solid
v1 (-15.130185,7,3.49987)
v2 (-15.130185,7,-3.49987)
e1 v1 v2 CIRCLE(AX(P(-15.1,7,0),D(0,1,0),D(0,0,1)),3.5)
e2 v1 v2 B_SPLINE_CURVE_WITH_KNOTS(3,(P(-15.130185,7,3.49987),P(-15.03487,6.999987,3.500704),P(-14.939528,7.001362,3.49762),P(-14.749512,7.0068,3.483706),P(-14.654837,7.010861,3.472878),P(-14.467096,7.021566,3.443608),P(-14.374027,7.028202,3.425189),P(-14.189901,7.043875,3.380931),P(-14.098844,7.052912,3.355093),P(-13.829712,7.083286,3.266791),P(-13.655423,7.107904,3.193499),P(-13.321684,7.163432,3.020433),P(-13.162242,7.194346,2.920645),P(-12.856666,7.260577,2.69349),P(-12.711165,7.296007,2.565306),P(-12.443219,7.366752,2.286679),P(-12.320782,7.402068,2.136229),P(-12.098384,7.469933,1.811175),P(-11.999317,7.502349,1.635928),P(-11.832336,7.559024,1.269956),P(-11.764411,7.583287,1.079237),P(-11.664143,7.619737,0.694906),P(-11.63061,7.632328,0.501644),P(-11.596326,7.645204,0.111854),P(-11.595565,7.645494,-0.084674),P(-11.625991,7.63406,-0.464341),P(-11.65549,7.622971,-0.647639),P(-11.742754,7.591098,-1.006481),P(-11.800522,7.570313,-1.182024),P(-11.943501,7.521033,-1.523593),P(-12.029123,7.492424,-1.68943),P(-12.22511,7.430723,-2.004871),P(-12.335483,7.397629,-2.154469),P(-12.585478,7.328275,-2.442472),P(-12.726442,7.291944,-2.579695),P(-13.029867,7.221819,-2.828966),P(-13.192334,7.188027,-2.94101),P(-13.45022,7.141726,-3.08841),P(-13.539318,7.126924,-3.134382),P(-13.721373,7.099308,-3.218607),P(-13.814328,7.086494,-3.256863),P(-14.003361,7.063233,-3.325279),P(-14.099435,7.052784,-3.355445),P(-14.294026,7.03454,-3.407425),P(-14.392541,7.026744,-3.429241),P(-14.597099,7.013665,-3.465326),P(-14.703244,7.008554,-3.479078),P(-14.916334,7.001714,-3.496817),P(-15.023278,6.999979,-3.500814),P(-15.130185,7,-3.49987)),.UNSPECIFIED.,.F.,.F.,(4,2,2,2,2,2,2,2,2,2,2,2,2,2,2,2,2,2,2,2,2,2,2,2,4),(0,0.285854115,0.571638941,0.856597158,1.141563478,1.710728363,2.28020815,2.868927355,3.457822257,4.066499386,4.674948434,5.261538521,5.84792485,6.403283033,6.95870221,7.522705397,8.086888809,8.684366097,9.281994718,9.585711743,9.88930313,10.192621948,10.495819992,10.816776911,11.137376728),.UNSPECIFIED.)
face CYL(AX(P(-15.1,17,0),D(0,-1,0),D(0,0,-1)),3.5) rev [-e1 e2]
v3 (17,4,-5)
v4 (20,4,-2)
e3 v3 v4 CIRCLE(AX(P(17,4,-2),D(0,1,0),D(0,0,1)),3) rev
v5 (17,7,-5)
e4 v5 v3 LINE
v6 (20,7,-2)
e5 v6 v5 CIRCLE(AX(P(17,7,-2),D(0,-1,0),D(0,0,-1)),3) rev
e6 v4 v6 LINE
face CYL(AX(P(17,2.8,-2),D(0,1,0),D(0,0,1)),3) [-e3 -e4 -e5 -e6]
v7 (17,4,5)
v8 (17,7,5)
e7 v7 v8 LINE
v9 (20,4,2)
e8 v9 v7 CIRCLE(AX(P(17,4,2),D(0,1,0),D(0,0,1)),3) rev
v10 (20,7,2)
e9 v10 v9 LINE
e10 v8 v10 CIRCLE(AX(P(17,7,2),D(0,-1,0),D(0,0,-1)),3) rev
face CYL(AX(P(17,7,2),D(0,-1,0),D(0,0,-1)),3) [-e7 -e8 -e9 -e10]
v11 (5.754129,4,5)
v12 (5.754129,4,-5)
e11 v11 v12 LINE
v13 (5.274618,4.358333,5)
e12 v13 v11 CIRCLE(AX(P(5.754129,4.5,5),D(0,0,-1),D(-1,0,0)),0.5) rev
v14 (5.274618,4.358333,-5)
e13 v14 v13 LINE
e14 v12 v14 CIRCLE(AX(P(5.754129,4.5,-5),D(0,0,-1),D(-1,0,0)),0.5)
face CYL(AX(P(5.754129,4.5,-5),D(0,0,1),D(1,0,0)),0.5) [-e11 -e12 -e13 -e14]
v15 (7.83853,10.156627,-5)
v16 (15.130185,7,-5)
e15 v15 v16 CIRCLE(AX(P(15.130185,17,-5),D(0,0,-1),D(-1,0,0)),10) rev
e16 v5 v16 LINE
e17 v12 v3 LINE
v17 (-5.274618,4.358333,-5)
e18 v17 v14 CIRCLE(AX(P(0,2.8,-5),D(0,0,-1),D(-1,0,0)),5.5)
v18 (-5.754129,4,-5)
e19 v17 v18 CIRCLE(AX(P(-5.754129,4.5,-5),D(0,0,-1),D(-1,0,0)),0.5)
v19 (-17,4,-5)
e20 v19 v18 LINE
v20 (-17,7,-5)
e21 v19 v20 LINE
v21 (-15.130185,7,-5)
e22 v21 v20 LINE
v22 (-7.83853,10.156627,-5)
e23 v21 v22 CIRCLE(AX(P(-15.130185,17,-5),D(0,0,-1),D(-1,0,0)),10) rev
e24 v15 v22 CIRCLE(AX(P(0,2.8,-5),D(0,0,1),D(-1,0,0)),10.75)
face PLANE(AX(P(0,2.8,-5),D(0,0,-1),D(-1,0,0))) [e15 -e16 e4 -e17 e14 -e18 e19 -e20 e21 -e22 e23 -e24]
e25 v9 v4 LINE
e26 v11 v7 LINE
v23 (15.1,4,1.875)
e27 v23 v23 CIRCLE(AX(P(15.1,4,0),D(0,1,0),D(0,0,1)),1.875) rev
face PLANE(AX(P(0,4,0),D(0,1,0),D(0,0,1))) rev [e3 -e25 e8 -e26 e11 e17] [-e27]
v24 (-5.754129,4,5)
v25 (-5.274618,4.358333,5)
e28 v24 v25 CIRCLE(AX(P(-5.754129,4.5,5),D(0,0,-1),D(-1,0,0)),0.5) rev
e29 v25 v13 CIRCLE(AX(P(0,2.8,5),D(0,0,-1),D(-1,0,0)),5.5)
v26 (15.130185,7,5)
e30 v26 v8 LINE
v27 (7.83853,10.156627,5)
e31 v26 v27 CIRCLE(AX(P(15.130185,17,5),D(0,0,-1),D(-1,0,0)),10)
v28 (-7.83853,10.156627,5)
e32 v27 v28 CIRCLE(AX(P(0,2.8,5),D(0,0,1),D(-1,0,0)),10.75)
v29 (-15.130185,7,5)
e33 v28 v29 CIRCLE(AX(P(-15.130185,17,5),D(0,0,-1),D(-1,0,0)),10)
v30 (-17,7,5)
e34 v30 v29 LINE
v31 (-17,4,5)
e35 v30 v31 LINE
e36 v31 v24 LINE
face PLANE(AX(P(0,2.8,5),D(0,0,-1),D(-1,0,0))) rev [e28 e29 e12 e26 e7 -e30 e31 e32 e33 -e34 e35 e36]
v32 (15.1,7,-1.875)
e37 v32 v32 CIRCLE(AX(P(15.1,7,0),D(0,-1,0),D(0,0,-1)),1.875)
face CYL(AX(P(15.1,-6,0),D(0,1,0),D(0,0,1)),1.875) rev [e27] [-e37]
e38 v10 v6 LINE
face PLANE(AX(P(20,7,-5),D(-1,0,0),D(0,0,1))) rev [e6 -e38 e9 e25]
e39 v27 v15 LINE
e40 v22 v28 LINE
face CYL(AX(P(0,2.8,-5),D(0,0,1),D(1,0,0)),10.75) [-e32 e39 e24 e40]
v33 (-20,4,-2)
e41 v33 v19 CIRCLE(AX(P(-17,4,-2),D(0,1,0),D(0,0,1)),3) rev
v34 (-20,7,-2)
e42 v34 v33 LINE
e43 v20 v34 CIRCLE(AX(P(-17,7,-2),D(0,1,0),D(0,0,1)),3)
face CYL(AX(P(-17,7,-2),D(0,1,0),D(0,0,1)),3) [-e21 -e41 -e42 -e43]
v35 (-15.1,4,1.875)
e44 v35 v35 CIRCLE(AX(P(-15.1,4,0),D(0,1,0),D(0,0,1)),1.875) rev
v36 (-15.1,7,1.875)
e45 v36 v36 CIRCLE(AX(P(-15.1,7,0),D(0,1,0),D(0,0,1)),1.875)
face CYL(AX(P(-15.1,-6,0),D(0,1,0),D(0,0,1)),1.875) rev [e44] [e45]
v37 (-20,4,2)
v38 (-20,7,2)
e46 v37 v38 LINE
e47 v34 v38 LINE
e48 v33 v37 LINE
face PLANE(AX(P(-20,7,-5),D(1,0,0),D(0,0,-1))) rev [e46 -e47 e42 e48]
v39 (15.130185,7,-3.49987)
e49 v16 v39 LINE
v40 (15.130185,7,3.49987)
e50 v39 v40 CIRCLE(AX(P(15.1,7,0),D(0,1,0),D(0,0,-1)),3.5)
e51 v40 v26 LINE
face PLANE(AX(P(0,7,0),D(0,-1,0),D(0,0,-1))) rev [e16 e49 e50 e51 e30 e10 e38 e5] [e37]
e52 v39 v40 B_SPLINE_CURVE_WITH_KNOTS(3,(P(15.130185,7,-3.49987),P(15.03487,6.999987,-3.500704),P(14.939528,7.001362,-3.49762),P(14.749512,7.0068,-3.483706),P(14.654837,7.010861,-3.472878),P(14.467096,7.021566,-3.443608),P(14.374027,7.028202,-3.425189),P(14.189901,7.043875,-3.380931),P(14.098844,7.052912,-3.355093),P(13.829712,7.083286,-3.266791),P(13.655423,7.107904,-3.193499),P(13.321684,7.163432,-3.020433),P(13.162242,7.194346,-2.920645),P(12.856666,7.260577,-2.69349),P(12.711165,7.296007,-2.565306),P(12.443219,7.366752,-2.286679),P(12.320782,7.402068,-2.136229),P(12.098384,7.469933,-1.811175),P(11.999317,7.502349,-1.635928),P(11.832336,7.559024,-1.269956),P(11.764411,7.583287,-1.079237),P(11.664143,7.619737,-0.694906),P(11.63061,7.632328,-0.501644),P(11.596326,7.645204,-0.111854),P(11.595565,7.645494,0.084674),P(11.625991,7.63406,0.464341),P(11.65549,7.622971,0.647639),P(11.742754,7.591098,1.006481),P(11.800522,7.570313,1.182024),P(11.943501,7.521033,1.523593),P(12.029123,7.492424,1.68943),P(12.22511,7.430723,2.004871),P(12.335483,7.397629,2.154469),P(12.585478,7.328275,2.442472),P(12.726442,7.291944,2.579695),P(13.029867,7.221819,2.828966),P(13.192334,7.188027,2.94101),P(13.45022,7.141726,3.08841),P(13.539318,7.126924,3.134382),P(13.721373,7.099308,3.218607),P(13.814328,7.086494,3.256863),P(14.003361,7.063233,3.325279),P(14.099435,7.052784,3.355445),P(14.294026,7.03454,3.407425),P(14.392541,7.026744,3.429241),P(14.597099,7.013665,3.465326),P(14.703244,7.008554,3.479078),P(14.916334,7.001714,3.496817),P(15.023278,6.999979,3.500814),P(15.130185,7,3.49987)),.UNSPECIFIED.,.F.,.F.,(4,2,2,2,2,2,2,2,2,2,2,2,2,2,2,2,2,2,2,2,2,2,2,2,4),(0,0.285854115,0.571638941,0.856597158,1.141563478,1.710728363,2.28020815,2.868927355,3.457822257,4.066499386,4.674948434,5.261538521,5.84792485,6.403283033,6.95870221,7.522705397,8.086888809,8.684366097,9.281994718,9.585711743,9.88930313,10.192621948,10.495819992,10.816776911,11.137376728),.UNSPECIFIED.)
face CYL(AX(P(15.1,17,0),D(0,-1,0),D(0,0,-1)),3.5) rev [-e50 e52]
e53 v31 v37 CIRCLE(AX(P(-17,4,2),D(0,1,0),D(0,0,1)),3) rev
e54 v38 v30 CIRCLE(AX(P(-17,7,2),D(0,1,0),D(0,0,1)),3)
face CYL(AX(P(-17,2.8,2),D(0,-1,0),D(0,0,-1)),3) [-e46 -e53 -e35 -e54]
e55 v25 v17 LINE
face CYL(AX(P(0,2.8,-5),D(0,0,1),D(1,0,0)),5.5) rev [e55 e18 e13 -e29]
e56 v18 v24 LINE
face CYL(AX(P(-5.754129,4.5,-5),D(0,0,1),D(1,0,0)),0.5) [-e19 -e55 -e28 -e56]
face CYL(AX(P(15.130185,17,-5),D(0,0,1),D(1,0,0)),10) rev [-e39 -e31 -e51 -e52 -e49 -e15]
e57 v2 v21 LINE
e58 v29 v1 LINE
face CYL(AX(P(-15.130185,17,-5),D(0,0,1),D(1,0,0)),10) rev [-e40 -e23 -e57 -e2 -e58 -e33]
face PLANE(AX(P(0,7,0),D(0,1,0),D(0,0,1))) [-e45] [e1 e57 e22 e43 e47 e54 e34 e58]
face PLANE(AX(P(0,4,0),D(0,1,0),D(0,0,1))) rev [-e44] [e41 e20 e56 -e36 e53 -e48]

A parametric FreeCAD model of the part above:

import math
import FreeCAD as App
import Part
import Sketcher

V = App.Vector


def edges_at(feature, points):
    """Names of the edges that pass closest to the given points."""
    edges = feature.Shape.Edges
    near = lambda p: min(range(len(edges)), key=lambda i: edges[i].distToShape(Part.Vertex(*p))[0])
    return sorted({f"Edge{near(p) + 1}" for p in points})


def add_polygon(sketch, points):
    """Adds a closed chain of lines whose ends are joined by coincident constraints."""
    first, n = sketch.GeometryCount, len(points)
    for a, b in zip(points, points[1:] + points[:1]):
        sketch.addGeometry(Part.LineSegment(App.Vector(*a, 0), App.Vector(*b, 0)), False)
    for i in range(n):
        sketch.addConstraint(Sketcher.Constraint("Coincident", first + i, 2, first + (i + 1) % n, 1))

doc = App.newDocument("Part")
body = doc.addObject("PartDesign::Body", "Body")

# Sketch on XZ plane
sketch1 = doc.addObject("Sketcher::SketchObject", "Sketch")
body.addObject(sketch1)
sketch1.AttachmentSupport = (doc.XZ_Plane, [""])
sketch1.MapMode = "FlatFace"
sketch1.AttachmentOffset = App.Placement(V(0, 0, 1), App.Rotation())
add_polygon(sketch1, [(-20, -5), (-20, 5), (20, 5), (20, -5)])  # lines 0-3
sketch1.addConstraint(Sketcher.Constraint("Vertical", 0))
sketch1.addConstraint(Sketcher.Constraint("Horizontal", 1))
sketch1.addConstraint(Sketcher.Constraint("Vertical", 2))
sketch1.addConstraint(Sketcher.Constraint("Horizontal", 3))
sketch1.addConstraint(Sketcher.Constraint("Symmetric", 0, 2, 2, 2, -1, 1))
sketch1.addConstraint(Sketcher.Constraint("DistanceX", 1, 1, 1, 2, 40.0))
sketch1.addConstraint(Sketcher.Constraint("DistanceY", 0, 1, 0, 2, 10.0))
pad1 = doc.addObject("PartDesign::Pad", "Pad")
body.addObject(pad1)
pad1.Profile = sketch1
pad1.Length = 5
doc.recompute()

fillet = doc.addObject("PartDesign::Fillet", "Fillet")
body.addObject(fillet)
fillet.Base = (pad1, edges_at(pad1, [
    (20, -3.5, 5),
    (-20, -3.5, 5),
    (-20, -3.5, -5),
    (20, -3.5, -5),
]))
fillet.Radius = 3
body2 = doc.addObject("PartDesign::Body", "Body001")

# Sketch on XY plane
sketch2 = doc.addObject("Sketcher::SketchObject", "Sketch001")
body2.addObject(sketch2)
sketch2.AttachmentSupport = (doc.getObject("XY_Plane001"), [""])
sketch2.MapMode = "FlatFace"
sketch2.addGeometry(Part.LineSegment(V(-10, 0, 0), V(-5, 0, 0)), False)
sketch2.addGeometry(Part.ArcOfCircle(Part.Circle(V(0, 3, 0), V(0, 0, 1), 6), math.radians(-31), math.radians(211)), False)
sketch2.addGeometry(Part.LineSegment(V(5, 0, 0), V(10, 0, 0)), False)
sketch2.addGeometry(Part.ArcOfCircle(Part.Circle(V(0, 3, 0), V(0, 0, 1), 11), math.radians(-15), math.radians(195)), False)
sketch2.addConstraint(Sketcher.Constraint("Coincident", 0, 2, 1, 2))
sketch2.addConstraint(Sketcher.Constraint("Coincident", 1, 1, 2, 1))
sketch2.addConstraint(Sketcher.Constraint("Coincident", 2, 2, 3, 1))
sketch2.addConstraint(Sketcher.Constraint("Coincident", 3, 2, 0, 1))
sketch2.addConstraint(Sketcher.Constraint("Horizontal", 0))
sketch2.addConstraint(Sketcher.Constraint("Horizontal", 2))
sketch2.addConstraint(Sketcher.Constraint("Coincident", 3, 3, 1, 3))
sketch2.addConstraint(Sketcher.Constraint("Symmetric", 0, 2, 1, 1, -1, 1))
sketch2.addConstraint(Sketcher.Constraint("PointOnObject", 1, 3, -2))
sketch2.addConstraint(Sketcher.Constraint("Radius", 1, 5.5))
sketch2.addConstraint(Sketcher.Constraint("Radius", 3, 10.75))
sketch2.addConstraint(Sketcher.Constraint("DistanceY", -1, 1, 1, 3, 2.8))
pad2 = doc.addObject("PartDesign::Pad", "Pad001")
body2.addObject(pad2)
pad2.Profile = sketch2
pad2.Type = "TwoLengths"
pad2.Length = 5
pad2.Length2 = 5

# Sketch on XZ plane
sketch3 = doc.addObject("Sketcher::SketchObject", "Sketch002")
body2.addObject(sketch3)
sketch3.AttachmentSupport = (doc.getObject("XZ_Plane001"), [""])
sketch3.MapMode = "FlatFace"
add_polygon(sketch3, [(-20, -5), (-20, 5), (-8, 5), (-8, -5)])  # lines 0-3
add_polygon(sketch3, [(8, -5), (8, 5), (20, 5), (20, -5)])  # lines 4-7
sketch3.addConstraint(Sketcher.Constraint("Vertical", 0))
sketch3.addConstraint(Sketcher.Constraint("Horizontal", 1))
sketch3.addConstraint(Sketcher.Constraint("Vertical", 2))
sketch3.addConstraint(Sketcher.Constraint("Horizontal", 3))
sketch3.addConstraint(Sketcher.Constraint("Vertical", 4))
sketch3.addConstraint(Sketcher.Constraint("Horizontal", 5))
sketch3.addConstraint(Sketcher.Constraint("Vertical", 6))
sketch3.addConstraint(Sketcher.Constraint("Horizontal", 7))
sketch3.addConstraint(Sketcher.Constraint("Symmetric", 2, 2, 4, 2, -1, 1))
sketch3.addConstraint(Sketcher.Constraint("Symmetric", 0, 2, 6, 2, -1, 1))
sketch3.addConstraint(Sketcher.Constraint("Horizontal", 1, 2, 4, 2))
sketch3.addConstraint(Sketcher.Constraint("DistanceX", 1, 1, 1, 2, 12.0))
sketch3.addConstraint(Sketcher.Constraint("DistanceY", 0, 1, 0, 2, 10.0))
sketch3.addConstraint(Sketcher.Constraint("DistanceX", 0, 2, -1, 1, 20.0))
pad3 = doc.addObject("PartDesign::Pad", "Pad002")
body2.addObject(pad3)
pad3.Profile = sketch3
pad3.Length = 7
pad3.Reversed = True
doc.recompute()

fillet2 = doc.addObject("PartDesign::Fillet", "Fillet001")
body2.addObject(fillet2)
fillet2.Base = (pad3, edges_at(pad3, [
    (-20, 3.5, -5),
    (-20, 3.5, 5),
    (20, 3.5, 5),
    (20, 3.5, -5),
]))
fillet2.Radius = 3
doc.recompute()

fillet3 = doc.addObject("PartDesign::Fillet", "Fillet002")
body2.addObject(fillet3)
fillet3.Base = (fillet2, edges_at(fillet2, [(-9.896, 7, 0), (9.896, 7, 0)]))
fillet3.Radius = 10
body3 = doc.addObject("PartDesign::Body", "Body002")
body3.AllowCompound = True

# Sketch on XZ plane
sketch4 = doc.addObject("Sketcher::SketchObject", "Sketch003")
body3.addObject(sketch4)
sketch4.AttachmentSupport = (doc.getObject("XZ_Plane002"), [""])
sketch4.MapMode = "FlatFace"
sketch4.addGeometry(Part.Circle(V(-15.1, 0, 0), V(0, 0, 1), 1.9), False)
sketch4.addGeometry(Part.Circle(V(15.1, 0, 0), V(0, 0, 1), 1.9), False)
sketch4.addConstraint(Sketcher.Constraint("Equal", 0, 1))
sketch4.addConstraint(Sketcher.Constraint("Symmetric", 0, 3, 1, 3, -1, 1))
sketch4.addConstraint(Sketcher.Constraint("PointOnObject", 0, 3, -1))
sketch4.addConstraint(Sketcher.Constraint("Diameter", 0, 3.75))
sketch4.addConstraint(Sketcher.Constraint("DistanceX", 0, 3, -1, 1, 15.1))
pad4 = doc.addObject("PartDesign::Pad", "Pad003")
body3.addObject(pad4)
pad4.Profile = sketch4
pad4.Type = "TwoLengths"
pad4.Length = 25.66987
pad4.Length2 = 25.66987
pad4.Reversed = True
doc.recompute()

body4 = doc.addObject("PartDesign::Body", "Body003")
body4.BaseFeature = body3
boolean = doc.addObject("PartDesign::Boolean", "Boolean")
body.addObject(boolean)
boolean.Type = "Cut"
boolean.addObjects([body4])
doc.recompute()

# Sketch on XZ plane
sketch5 = doc.addObject("Sketcher::SketchObject", "Sketch004")
body.addObject(sketch5)
sketch5.AttachmentSupport = (doc.XZ_Plane, [""])
sketch5.MapMode = "FlatFace"
add_polygon(sketch5, [(-28, -10), (-28, 13), (24, 13), (24, -10)])  # lines 0-3
sketch5.addConstraint(Sketcher.Constraint("Vertical", 0))
sketch5.addConstraint(Sketcher.Constraint("Horizontal", 1))
sketch5.addConstraint(Sketcher.Constraint("Vertical", 2))
sketch5.addConstraint(Sketcher.Constraint("Horizontal", 3))
sketch5.addConstraint(Sketcher.Constraint("DistanceY", 0, 1, 0, 2, 23.044769))
sketch5.addConstraint(Sketcher.Constraint("DistanceX", 1, 1, 1, 2, 51.703076))
sketch5.addConstraint(Sketcher.Constraint("DistanceX", 0, 2, -1, 1, 27.54486))
sketch5.addConstraint(Sketcher.Constraint("DistanceY", -1, 1, 0, 2, 13.243824))
pocket1 = doc.addObject("PartDesign::Pocket", "Pocket")
body.addObject(pocket1)
pocket1.Profile = sketch5
pocket1.Type = "ThroughAll"
pocket1.Reversed = True
doc.recompute()

boolean2 = doc.addObject("PartDesign::Boolean", "Boolean001")
body2.addObject(boolean2)
boolean2.Type = "Cut"
boolean2.addObjects([body3])

# Sketch on XZ plane
sketch6 = doc.addObject("Sketcher::SketchObject", "Sketch005")
body2.addObject(sketch6)
sketch6.AttachmentSupport = (doc.getObject("XZ_Plane001"), [""])
sketch6.MapMode = "FlatFace"
sketch6.AttachmentOffset = App.Placement(V(0, 0, -7), App.Rotation())
sketch6.addGeometry(Part.Circle(V(-15.1, 0, 0), V(0, 0, 1), 3.5), False)
sketch6.addGeometry(Part.Circle(V(15.1, 0, 0), V(0, 0, 1), 3.5), False)
sketch6.addConstraint(Sketcher.Constraint("Equal", 0, 1))
sketch6.addConstraint(Sketcher.Constraint("Symmetric", 0, 3, 1, 3, -1, 1))
sketch6.addConstraint(Sketcher.Constraint("PointOnObject", 0, 3, -1))
sketch6.addConstraint(Sketcher.Constraint("Diameter", 0, 7.0))
sketch6.addConstraint(Sketcher.Constraint("DistanceX", 0, 3, -1, 1, 15.1))
pocket2 = doc.addObject("PartDesign::Pocket", "Pocket001")
body2.addObject(pocket2)
pocket2.Profile = sketch6
pocket2.Length = 10

# Sketch on XZ plane
sketch7 = doc.addObject("Sketcher::SketchObject", "Sketch006")
body2.addObject(sketch7)
sketch7.AttachmentSupport = (doc.getObject("XZ_Plane001"), [""])
sketch7.MapMode = "FlatFace"
add_polygon(sketch7, [(-21, -12), (-21, 12), (26, 12), (26, -12)])  # lines 0-3
sketch7.addConstraint(Sketcher.Constraint("Vertical", 0))
sketch7.addConstraint(Sketcher.Constraint("Horizontal", 1))
sketch7.addConstraint(Sketcher.Constraint("Vertical", 2))
sketch7.addConstraint(Sketcher.Constraint("Horizontal", 3))
sketch7.addConstraint(Sketcher.Constraint("DistanceX", 1, 1, 1, 2, 47.094451))
sketch7.addConstraint(Sketcher.Constraint("DistanceY", 0, 1, 0, 2, 23.336565))
sketch7.addConstraint(Sketcher.Constraint("DistanceX", 0, 2, -1, 1, 21.46573))
sketch7.addConstraint(Sketcher.Constraint("DistanceY", 2, 2, -1, 1, 11.672419))
pocket3 = doc.addObject("PartDesign::Pocket", "Pocket002")
body2.addObject(pocket3)
pocket3.Profile = sketch7
pocket3.Length = 4
doc.recompute()

fillet4 = doc.addObject("PartDesign::Fillet", "Fillet003")
body2.addObject(fillet4)
fillet4.Base = (pocket3, edges_at(pocket3, [(-5.367, 4, 0), (5.367, 4, 0)]))
fillet4.Radius = 0.5

doc.recompute()
